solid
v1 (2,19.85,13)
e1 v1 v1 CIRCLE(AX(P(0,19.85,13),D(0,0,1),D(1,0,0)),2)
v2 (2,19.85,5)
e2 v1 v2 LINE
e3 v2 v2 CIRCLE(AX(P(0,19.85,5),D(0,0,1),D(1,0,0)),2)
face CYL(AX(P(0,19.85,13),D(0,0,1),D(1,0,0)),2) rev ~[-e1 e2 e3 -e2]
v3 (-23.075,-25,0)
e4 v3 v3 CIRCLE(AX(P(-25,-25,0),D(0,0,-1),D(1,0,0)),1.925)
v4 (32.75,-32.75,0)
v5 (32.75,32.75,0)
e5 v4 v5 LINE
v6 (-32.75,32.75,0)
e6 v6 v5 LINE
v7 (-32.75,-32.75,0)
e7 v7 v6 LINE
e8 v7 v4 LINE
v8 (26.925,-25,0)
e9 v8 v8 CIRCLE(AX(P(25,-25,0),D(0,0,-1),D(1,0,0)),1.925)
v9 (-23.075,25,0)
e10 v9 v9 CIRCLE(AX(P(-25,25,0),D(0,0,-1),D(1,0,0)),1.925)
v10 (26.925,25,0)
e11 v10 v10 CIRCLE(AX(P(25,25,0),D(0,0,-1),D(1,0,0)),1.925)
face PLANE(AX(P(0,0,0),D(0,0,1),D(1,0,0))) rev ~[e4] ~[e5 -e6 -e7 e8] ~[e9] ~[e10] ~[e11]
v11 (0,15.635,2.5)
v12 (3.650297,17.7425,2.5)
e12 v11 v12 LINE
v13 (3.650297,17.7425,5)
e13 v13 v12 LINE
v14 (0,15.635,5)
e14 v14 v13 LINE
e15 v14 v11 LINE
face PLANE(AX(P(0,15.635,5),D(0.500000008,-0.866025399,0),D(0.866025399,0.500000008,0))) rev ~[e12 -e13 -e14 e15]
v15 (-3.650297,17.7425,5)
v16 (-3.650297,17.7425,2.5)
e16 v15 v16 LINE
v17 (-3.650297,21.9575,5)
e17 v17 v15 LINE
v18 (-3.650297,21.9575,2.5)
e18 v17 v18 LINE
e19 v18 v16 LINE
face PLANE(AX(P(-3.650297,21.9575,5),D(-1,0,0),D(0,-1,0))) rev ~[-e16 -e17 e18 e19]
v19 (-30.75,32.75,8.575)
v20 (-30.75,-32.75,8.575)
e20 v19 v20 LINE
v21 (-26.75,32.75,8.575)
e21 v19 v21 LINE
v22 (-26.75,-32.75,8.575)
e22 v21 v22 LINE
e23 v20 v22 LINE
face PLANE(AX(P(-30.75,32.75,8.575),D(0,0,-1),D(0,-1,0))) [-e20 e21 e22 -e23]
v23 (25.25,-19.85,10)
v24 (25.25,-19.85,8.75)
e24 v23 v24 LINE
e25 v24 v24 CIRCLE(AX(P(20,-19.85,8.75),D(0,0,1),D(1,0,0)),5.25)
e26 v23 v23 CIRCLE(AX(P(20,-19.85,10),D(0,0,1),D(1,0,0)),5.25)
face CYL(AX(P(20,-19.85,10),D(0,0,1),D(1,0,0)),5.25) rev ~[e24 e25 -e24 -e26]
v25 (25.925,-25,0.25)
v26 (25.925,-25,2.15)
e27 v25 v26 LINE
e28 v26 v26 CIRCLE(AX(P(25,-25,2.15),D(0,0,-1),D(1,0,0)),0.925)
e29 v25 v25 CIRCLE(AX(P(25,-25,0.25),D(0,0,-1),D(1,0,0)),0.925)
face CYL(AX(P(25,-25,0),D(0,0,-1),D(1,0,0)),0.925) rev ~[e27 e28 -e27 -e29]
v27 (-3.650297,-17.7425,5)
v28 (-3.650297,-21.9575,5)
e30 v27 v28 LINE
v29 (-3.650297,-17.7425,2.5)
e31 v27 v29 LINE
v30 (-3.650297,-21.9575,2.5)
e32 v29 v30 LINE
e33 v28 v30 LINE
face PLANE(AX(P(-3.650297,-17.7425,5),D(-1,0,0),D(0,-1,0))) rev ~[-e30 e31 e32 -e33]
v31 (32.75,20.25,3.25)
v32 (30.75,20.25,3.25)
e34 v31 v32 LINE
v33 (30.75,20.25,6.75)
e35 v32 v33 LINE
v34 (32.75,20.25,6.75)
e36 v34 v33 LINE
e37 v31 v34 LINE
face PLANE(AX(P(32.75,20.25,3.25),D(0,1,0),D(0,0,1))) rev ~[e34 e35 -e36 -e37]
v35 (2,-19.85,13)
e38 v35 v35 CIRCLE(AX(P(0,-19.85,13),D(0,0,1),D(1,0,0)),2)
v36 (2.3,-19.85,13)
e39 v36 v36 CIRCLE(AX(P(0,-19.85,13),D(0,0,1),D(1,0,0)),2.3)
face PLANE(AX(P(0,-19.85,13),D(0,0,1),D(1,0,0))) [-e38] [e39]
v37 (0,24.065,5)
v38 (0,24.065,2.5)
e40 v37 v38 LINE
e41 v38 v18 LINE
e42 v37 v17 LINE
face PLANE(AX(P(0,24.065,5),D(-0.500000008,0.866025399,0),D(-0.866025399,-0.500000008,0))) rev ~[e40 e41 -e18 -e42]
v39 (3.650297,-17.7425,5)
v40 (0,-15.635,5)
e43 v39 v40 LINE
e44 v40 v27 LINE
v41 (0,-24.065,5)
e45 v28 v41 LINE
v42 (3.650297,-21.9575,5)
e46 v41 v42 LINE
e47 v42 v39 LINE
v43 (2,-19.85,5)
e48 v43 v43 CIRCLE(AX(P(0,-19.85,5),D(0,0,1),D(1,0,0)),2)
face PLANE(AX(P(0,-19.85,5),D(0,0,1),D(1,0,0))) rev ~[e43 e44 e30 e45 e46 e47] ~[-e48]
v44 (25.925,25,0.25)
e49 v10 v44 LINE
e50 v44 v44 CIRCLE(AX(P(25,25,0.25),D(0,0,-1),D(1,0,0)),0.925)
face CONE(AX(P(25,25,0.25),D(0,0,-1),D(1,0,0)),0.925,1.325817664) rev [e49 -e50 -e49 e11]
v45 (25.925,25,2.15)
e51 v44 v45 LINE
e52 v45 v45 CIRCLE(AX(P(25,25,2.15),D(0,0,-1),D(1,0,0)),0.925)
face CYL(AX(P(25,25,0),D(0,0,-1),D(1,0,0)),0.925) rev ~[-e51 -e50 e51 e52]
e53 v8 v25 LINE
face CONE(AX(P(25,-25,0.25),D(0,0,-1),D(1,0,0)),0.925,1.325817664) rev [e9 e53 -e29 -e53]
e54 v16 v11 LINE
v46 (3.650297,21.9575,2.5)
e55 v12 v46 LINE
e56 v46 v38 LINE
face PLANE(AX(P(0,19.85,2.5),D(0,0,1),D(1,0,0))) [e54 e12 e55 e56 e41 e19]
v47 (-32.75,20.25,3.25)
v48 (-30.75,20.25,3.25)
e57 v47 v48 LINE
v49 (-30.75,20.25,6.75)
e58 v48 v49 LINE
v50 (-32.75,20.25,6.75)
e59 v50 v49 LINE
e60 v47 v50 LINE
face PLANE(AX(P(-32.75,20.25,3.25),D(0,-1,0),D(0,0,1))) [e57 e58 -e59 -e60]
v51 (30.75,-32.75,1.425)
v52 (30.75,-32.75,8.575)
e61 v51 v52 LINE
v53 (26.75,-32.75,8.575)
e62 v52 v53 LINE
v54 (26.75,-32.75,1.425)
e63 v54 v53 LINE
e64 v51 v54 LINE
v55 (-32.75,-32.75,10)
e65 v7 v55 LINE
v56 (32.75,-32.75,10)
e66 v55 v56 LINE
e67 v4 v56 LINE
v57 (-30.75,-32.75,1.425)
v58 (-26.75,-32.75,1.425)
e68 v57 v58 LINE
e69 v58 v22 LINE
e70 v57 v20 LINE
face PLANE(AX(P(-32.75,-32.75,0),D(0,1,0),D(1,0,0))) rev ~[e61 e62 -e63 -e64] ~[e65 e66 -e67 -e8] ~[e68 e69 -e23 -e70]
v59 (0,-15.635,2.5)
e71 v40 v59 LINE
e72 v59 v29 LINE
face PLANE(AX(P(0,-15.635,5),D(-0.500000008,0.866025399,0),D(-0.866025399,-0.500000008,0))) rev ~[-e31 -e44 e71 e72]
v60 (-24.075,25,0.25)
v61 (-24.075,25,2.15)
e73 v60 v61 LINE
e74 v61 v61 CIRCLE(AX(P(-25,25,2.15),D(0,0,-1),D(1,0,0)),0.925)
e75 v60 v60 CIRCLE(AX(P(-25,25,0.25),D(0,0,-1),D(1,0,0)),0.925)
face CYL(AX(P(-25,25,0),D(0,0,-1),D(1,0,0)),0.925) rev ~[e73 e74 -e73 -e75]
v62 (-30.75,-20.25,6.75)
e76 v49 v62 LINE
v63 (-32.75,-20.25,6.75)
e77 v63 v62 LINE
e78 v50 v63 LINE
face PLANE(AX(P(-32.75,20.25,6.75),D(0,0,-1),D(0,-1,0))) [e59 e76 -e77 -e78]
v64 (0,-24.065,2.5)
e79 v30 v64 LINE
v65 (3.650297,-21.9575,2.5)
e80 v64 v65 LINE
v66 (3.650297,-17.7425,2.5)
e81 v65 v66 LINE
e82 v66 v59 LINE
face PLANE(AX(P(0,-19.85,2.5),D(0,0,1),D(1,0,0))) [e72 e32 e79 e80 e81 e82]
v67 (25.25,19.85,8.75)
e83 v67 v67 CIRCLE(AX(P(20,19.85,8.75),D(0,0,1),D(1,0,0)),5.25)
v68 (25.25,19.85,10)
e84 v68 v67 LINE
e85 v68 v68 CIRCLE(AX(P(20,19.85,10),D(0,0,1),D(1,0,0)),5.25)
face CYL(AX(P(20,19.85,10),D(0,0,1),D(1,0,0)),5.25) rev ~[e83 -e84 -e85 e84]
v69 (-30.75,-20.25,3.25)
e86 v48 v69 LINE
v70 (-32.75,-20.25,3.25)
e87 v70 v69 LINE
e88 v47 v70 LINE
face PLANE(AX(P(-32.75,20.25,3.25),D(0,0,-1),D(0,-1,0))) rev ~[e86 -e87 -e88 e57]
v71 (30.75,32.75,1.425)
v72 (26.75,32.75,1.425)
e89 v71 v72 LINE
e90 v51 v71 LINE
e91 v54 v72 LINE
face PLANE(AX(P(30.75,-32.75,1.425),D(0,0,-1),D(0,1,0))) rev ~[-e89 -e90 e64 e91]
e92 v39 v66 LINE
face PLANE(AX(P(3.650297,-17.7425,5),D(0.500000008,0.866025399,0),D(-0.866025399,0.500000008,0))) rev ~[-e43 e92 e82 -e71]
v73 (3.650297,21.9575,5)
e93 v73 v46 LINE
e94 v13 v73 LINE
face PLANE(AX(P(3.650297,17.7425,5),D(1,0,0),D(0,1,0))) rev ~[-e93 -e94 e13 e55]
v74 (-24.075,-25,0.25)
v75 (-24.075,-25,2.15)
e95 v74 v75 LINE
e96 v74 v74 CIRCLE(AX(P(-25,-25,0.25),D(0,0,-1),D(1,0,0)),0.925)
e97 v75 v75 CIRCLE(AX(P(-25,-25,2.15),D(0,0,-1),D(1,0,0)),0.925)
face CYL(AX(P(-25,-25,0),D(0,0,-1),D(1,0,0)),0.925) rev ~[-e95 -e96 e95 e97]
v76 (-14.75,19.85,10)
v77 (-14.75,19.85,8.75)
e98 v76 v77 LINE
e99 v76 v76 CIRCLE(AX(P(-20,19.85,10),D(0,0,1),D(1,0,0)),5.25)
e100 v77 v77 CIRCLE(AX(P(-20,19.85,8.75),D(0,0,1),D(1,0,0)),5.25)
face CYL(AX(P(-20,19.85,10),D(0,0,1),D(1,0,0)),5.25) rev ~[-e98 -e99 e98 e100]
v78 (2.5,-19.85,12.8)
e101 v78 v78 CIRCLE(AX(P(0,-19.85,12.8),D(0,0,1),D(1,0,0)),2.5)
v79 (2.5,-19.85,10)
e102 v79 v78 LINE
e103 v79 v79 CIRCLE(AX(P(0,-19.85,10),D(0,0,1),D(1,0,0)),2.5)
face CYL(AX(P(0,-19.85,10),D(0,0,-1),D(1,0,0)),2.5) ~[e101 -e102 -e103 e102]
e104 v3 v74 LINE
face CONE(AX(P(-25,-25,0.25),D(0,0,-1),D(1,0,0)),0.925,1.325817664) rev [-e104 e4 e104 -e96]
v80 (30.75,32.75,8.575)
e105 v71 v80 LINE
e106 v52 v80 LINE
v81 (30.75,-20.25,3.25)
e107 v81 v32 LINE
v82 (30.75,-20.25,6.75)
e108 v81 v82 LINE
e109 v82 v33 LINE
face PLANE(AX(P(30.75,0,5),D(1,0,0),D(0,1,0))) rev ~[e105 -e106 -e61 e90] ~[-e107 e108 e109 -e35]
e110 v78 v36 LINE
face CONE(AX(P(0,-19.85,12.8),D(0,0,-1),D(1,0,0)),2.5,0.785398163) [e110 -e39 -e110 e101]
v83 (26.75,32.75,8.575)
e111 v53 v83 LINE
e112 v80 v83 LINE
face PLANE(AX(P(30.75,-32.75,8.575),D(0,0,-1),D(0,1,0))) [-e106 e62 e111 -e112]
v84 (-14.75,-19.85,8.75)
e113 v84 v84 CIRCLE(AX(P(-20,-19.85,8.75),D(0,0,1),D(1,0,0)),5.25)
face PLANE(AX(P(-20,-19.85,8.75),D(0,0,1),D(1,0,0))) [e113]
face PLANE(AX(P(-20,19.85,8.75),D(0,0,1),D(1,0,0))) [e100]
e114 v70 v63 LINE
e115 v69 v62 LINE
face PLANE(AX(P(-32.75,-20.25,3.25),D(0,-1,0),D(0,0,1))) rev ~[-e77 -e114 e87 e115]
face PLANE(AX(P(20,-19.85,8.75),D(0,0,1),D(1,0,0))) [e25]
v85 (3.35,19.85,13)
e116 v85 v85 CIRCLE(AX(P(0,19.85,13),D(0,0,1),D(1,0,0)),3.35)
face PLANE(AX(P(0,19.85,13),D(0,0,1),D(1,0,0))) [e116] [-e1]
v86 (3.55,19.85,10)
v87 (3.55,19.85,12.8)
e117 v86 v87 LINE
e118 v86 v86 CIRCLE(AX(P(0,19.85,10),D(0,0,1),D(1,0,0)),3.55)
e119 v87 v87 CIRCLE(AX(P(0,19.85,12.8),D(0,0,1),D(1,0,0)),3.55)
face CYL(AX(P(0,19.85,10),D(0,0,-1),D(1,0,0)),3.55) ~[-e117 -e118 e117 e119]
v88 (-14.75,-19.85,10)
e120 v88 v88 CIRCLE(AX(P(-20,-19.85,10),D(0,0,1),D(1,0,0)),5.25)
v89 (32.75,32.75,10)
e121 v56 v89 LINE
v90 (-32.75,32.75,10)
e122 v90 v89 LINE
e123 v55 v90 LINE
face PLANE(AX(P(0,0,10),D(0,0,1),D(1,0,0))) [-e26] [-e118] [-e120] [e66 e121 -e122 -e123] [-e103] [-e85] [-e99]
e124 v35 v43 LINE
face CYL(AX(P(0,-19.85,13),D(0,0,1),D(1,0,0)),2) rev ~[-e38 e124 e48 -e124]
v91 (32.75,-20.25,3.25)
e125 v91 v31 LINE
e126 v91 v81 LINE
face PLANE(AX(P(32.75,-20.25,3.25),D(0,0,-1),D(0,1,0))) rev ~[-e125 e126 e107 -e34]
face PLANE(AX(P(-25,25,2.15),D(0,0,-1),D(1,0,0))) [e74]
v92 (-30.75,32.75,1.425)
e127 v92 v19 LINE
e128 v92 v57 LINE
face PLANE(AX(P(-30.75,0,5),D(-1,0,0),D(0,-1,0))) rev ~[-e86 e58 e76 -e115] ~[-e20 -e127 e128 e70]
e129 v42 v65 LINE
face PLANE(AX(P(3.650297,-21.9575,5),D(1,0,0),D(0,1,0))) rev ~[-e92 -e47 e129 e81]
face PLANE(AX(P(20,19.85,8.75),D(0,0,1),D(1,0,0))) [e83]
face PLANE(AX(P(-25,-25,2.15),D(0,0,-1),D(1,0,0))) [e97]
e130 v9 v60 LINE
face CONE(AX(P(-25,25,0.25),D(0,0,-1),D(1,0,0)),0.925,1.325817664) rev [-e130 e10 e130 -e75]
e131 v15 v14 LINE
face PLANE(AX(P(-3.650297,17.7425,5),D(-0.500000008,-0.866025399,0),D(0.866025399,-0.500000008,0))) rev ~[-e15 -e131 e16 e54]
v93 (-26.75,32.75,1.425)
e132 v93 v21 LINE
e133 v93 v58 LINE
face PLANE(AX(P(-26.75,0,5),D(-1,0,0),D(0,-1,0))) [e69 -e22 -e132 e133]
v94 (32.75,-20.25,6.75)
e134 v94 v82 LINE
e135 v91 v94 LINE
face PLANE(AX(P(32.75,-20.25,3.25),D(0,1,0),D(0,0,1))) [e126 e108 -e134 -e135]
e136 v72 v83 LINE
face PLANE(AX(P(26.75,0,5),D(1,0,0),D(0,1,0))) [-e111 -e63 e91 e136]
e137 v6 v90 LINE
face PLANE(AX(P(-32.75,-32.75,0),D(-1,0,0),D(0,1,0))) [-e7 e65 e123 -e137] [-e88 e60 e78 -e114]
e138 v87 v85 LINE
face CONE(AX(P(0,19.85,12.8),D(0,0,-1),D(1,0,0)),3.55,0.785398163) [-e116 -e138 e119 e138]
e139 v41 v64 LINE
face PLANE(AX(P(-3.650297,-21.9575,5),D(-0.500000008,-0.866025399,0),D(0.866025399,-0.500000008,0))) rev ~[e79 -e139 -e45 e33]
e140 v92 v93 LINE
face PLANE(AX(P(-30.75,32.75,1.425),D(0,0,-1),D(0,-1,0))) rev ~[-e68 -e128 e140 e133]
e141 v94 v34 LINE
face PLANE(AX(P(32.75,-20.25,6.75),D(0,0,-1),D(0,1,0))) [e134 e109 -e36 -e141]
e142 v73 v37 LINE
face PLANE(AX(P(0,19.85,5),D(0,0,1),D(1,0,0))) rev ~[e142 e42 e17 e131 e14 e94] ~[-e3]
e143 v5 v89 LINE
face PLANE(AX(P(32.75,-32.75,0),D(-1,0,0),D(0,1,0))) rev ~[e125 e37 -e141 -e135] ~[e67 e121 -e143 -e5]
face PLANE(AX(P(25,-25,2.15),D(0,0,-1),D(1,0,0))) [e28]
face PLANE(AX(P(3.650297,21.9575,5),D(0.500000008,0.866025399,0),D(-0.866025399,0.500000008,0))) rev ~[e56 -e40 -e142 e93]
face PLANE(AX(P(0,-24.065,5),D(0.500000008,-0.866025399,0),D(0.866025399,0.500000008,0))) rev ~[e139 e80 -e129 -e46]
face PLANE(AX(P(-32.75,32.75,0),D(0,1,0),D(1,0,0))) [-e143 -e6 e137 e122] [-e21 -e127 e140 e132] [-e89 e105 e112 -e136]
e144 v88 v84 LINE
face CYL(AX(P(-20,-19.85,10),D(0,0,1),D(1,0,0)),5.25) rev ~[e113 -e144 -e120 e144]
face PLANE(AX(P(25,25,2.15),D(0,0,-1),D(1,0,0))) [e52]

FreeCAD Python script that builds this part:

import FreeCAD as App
import Part
import Sketcher

V = App.Vector
Q = App.Units.Quantity


def edges_at(feature, points):
    """Names of the edges that pass closest to the given points."""
    edges = feature.Shape.Edges
    near = lambda p: min(range(len(edges)), key=lambda i: edges[i].distToShape(Part.Vertex(*p))[0])
    return sorted({f"Edge{near(p) + 1}" for p in points})


def add_polygon(sketch, points):
    """Adds a closed chain of lines whose ends are joined by coincident constraints."""
    first, n = sketch.GeometryCount, len(points)
    for a, b in zip(points, points[1:] + points[:1]):
        sketch.addGeometry(Part.LineSegment(App.Vector(*a, 0), App.Vector(*b, 0)), False)
    for i in range(n):
        sketch.addConstraint(Sketcher.Constraint("Coincident", first + i, 2, first + (i + 1) % n, 1))

doc = App.newDocument("Part")
body = doc.addObject("PartDesign::Body", "Body")

sketch1 = body.newObject("Sketcher::SketchObject", "Sketch")
sketch1.AttachmentSupport = (doc.getObject("XY_Plane"), [""])
sketch1.MapMode = "FlatFace"
add_polygon(sketch1, [(-33, 33), (-33, -33), (33, -33), (33, 33)])
sketch1.addConstraint([
    Sketcher.Constraint("Vertical", 0),
    Sketcher.Constraint("Horizontal", 1),
    Sketcher.Constraint("Vertical", 2),
    Sketcher.Constraint("Horizontal", 3),
    Sketcher.Constraint("Symmetric", 0, 2, 2, 2, -1, 1),
    Sketcher.Constraint("Equal", 3, 0),
    Sketcher.Constraint("DistanceX", 1, 1, 1, 2, Q("65.5 mm")),
])
pad1 = body.newObject("PartDesign::Pad", "Pad")
pad1.Profile = sketch1
pad1.Length = 10

sketch2 = body.newObject("Sketcher::SketchObject", "Sketch001")
sketch2.AttachmentSupport = (doc.getObject("XY_Plane"), [""])
sketch2.MapMode = "FlatFace"
sketch2.AttachmentOffset = App.Placement(V(0, 0, 10), App.Rotation())
sketch2.addGeometry([
    Part.Circle(V(0, 19.9, 0), V(0, 0, 1), 3.5),
    Part.Circle(V(0, -19.9, 0), V(0, 0, 1), 2.5),
], False)
sketch2.addConstraint([
    Sketcher.Constraint("Symmetric", 0, 3, 1, 3, -1, 1),
    Sketcher.Constraint("PointOnObject", 0, 3, -2),
    Sketcher.Constraint("Diameter", 1, Q("5 mm")),
    Sketcher.Constraint("Diameter", 0, Q("7.1 mm")),
    Sketcher.Constraint("DistanceY", 1, 3, 0, 3, Q("39.7 mm")),
])
pad2 = body.newObject("PartDesign::Pad", "Pad001")
pad2.Profile = sketch2
pad2.Length = 3

sketch3 = body.newObject("Sketcher::SketchObject", "Sketch002")
sketch3.AttachmentSupport = (doc.getObject("XY_Plane"), [""])
sketch3.MapMode = "FlatFace"
sketch3.AttachmentOffset = App.Placement(V(0, 0, 13), App.Rotation())
sketch3.addGeometry([
    Part.Circle(V(0, 19.9, 0), V(0, 0, 1), 2),
    Part.Circle(V(0, -19.9, 0), V(0, 0, 1), 2),
], False)
sketch3.addConstraint([
    Sketcher.Constraint("Equal", 0, 1),
    Sketcher.Constraint("Symmetric", 0, 3, 1, 3, -1, 1),
    Sketcher.Constraint("PointOnObject", 0, 3, -2),
    Sketcher.Constraint("Diameter", 0, Q("4 mm")),
    Sketcher.Constraint("DistanceY", 1, 3, 0, 3, Q("39.7 mm")),
])
pocket1 = body.newObject("PartDesign::Pocket", "Pocket")
pocket1.Profile = sketch3
pocket1.Length = 8
doc.recompute()

chamfer = body.newObject("PartDesign::Chamfer", "Chamfer")
chamfer.Base = (pocket1, edges_at(pocket1, [(-3.55, 19.85, 13), (-2.5, -19.85, 13)]))
chamfer.Size = 0.2

sketch4 = body.newObject("Sketcher::SketchObject", "Sketch003")
sketch4.AttachmentSupport = (doc.getObject("XY_Plane"), [""])
sketch4.MapMode = "FlatFace"
sketch4.AttachmentOffset = App.Placement(V(0, 0, 5), App.Rotation())
add_polygon(sketch4, [(-3.7, 17.7), (0, 15.6), (3.7, 17.7), (3.7, 22), (0, 24.1), (-3.7, 22)])
add_polygon(sketch4, [(-3.7, -22), (0, -24.1), (3.7, -22), (3.7, -17.7), (0, -15.6), (-3.7, -17.7)])
sketch4.addConstraint([
    Sketcher.Constraint("Vertical", 2),
    Sketcher.Constraint("Vertical", 5),
    Sketcher.Constraint("Vertical", 8),
    Sketcher.Constraint("Vertical", 11),
    Sketcher.Constraint("Symmetric", 3, 2, 6, 2, -1, 1),
    Sketcher.Constraint("Symmetric", 4, 2, 7, 2, -1, 1),
    Sketcher.Constraint("Symmetric", 0, 2, 9, 2, -1, 1),
    Sketcher.Constraint("Symmetric", 1, 2, 10, 2, -1, 1),
    Sketcher.Constraint("Symmetric", 2, 2, 4, 2, -2),
    Sketcher.Constraint("PointOnObject", 0, 2, -2),
    Sketcher.Constraint("PointOnObject", 3, 2, -2),
    Sketcher.Constraint("Parallel", 0, 3),
    Sketcher.Constraint("Parallel", 1, 4),
    Sketcher.Constraint("Parallel", 3, 6),
    Sketcher.Constraint("Parallel", 6, 9),
    Sketcher.Constraint("Angle", 0, Q("-30.000001 deg")),
    Sketcher.Constraint("DistanceY", 6, 2, 0, 2, Q("39.7 mm")),
    Sketcher.Constraint("DistanceY", 2, 1, 2, 2, Q("4.215 mm")),
    Sketcher.Constraint("DistanceY", 0, 2, 3, 2, Q("8.43 mm")),
])
pocket2 = body.newObject("PartDesign::Pocket", "Pocket001")
pocket2.Profile = sketch4
pocket2.Length = 2.5

sketch5 = body.newObject("Sketcher::SketchObject", "Sketch004")
sketch5.AttachmentSupport = (doc.getObject("YZ_Plane"), [""])
sketch5.MapMode = "FlatFace"
sketch5.AttachmentOffset = App.Placement(V(0, 0, 32.75), App.Rotation())
add_polygon(sketch5, [(-20.2, 6.8), (-20.2, 3.2), (20.2, 3.2), (20.2, 6.8)])
sketch5.addConstraint([
    Sketcher.Constraint("Vertical", 0),
    Sketcher.Constraint("Horizontal", 1),
    Sketcher.Constraint("Vertical", 2),
    Sketcher.Constraint("Horizontal", 3),
    Sketcher.Constraint("DistanceX", 1, 1, 1, 2, Q("40.5 mm")),
    Sketcher.Constraint("DistanceY", 0, 2, 0, 1, Q("3.5 mm")),
    Sketcher.Constraint("DistanceX", 0, 2, -1, 1, Q("20.25 mm")),
    Sketcher.Constraint("DistanceY", -1, 1, 0, 2, Q("3.25 mm")),
])
pocket3 = body.newObject("PartDesign::Pocket", "Pocket002")
pocket3.Profile = sketch5
pocket3.Length = 2

sketch6 = body.newObject("Sketcher::SketchObject", "Sketch005")
sketch6.AttachmentSupport = (doc.getObject("YZ_Plane"), [""])
sketch6.MapMode = "FlatFace"
sketch6.AttachmentOffset = App.Placement(V(0, 0, -32.75), App.Rotation())
add_polygon(sketch6, [(20.2, 6.8), (20.2, 3.2), (-20.2, 3.2), (-20.2, 6.8)])
sketch6.addConstraint([
    Sketcher.Constraint("Vertical", 0),
    Sketcher.Constraint("Horizontal", 1),
    Sketcher.Constraint("Vertical", 2),
    Sketcher.Constraint("Horizontal", 3),
    Sketcher.Constraint("DistanceX", 1, 2, 1, 1, Q("40.5 mm")),
    Sketcher.Constraint("DistanceY", 0, 2, 0, 1, Q("3.5 mm")),
    Sketcher.Constraint("DistanceX", -1, 1, 0, 2, Q("20.25 mm")),
    Sketcher.Constraint("DistanceY", -1, 1, 0, 2, Q("3.25 mm")),
])
pocket4 = body.newObject("PartDesign::Pocket", "Pocket003")
pocket4.Profile = sketch6
pocket4.Length = 2
pocket4.Reversed = True

sketch7 = body.newObject("Sketcher::SketchObject", "Sketch006")
sketch7.AttachmentSupport = (doc.getObject("YZ_Plane"), [""])
sketch7.MapMode = "FlatFace"
sketch7.AttachmentOffset = App.Placement(V(0, 0, 30.75), App.Rotation())
add_polygon(sketch7, [(-33, 9), (-33, 1), (33, 1), (33, 9)])
sketch7.addConstraint([
    Sketcher.Constraint("Vertical", 0),
    Sketcher.Constraint("Horizontal", 1),
    Sketcher.Constraint("Vertical", 2),
    Sketcher.Constraint("Horizontal", 3),
    Sketcher.Constraint("DistanceX", 1, 1, 1, 2, Q("65.5 mm")),
    Sketcher.Constraint("DistanceY", 0, 2, 0, 1, Q("7.15 mm")),
    Sketcher.Constraint("DistanceX", 0, 2, -1, 1, Q("32.75 mm")),
    Sketcher.Constraint("DistanceY", -1, 1, 0, 2, Q("1.425 mm")),
])
pocket5 = body.newObject("PartDesign::Pocket", "Pocket004")
pocket5.Profile = sketch7
pocket5.Length = 4

sketch8 = body.newObject("Sketcher::SketchObject", "Sketch007")
sketch8.AttachmentSupport = (doc.getObject("YZ_Plane"), [""])
sketch8.MapMode = "FlatFace"
sketch8.AttachmentOffset = App.Placement(V(0, 0, -30.75), App.Rotation())
add_polygon(sketch8, [(33, 9), (33, 1), (-33, 1), (-33, 9)])
sketch8.addConstraint([
    Sketcher.Constraint("Vertical", 0),
    Sketcher.Constraint("Horizontal", 1),
    Sketcher.Constraint("Vertical", 2),
    Sketcher.Constraint("Horizontal", 3),
    Sketcher.Constraint("DistanceX", 1, 2, 1, 1, Q("65.5 mm")),
    Sketcher.Constraint("DistanceY", 0, 2, 0, 1, Q("7.15 mm")),
    Sketcher.Constraint("DistanceX", -1, 1, 0, 2, Q("32.75 mm")),
    Sketcher.Constraint("DistanceY", -1, 1, 0, 2, Q("1.425 mm")),
])
pocket6 = body.newObject("PartDesign::Pocket", "Pocket005")
pocket6.Profile = sketch8
pocket6.Length = 4
pocket6.Reversed = True

sketch9 = body.newObject("Sketcher::SketchObject", "Sketch008")
sketch9.AttachmentSupport = (doc.getObject("XY_Plane"), [""])
sketch9.MapMode = "FlatFace"
sketch9.addGeometry([
    Part.Circle(V(-25, -25, 0), V(0, 0, 1), 0.9),
    Part.Circle(V(25, -25, 0), V(0, 0, 1), 0.9),
    Part.Circle(V(-25, 25, 0), V(0, 0, 1), 0.9),
    Part.Circle(V(25, 25, 0), V(0, 0, 1), 0.9),
], False)
sketch9.addConstraint([
    Sketcher.Constraint("Equal", 0, 1),
    Sketcher.Constraint("Equal", 1, 2),
    Sketcher.Constraint("Equal", 2, 3),
    Sketcher.Constraint("Symmetric", 1, 3, 2, 3, -1, 1),
    Sketcher.Constraint("Symmetric", 0, 3, 3, 3, -1, 1),
    Sketcher.Constraint("Symmetric", 0, 3, 1, 3, -2),
    Sketcher.Constraint("Diameter", 0, Q("1.85 mm")),
    Sketcher.Constraint("DistanceX", 0, 3, -1, 1, Q("25 mm")),
    Sketcher.Constraint("DistanceY", 0, 3, -1, 1, Q("25 mm")),
])
pocket7 = body.newObject("PartDesign::Pocket", "Pocket006")
pocket7.Profile = sketch9
pocket7.Length = 2.15
pocket7.Reversed = True
doc.recompute()

chamfer2 = body.newObject("PartDesign::Chamfer", "Chamfer001")
chamfer2.Base = (pocket7, edges_at(pocket7, [
    (-25.925, -25, 0),
    (24.075, -25, 0),
    (-25.925, 25, 0),
    (24.075, 25, 0),
]))
chamfer2.ChamferType = "Two distances"
chamfer2.Size = 1
chamfer2.Size2 = 0.25

sketch10 = body.newObject("Sketcher::SketchObject", "Sketch009")
sketch10.AttachmentSupport = (doc.getObject("XY_Plane"), [""])
sketch10.MapMode = "FlatFace"
sketch10.AttachmentOffset = App.Placement(V(0, 0, 10), App.Rotation())
sketch10.addGeometry([
    Part.Circle(V(-20, 20, 0), V(0, 0, 1), 5),
    Part.Circle(V(20, 20, 0), V(0, 0, 1), 5),
    Part.Circle(V(20, -20, 0), V(0, 0, 1), 5),
    Part.Circle(V(-20, -20, 0), V(0, 0, 1), 5),
], False)
sketch10.addConstraint([
    Sketcher.Constraint("Equal", 0, 1),
    Sketcher.Constraint("Equal", 1, 2),
    Sketcher.Constraint("Equal", 2, 3),
    Sketcher.Constraint("Symmetric", 0, 3, 2, 3, -1, 1),
    Sketcher.Constraint("Symmetric", 1, 3, 3, 3, -1, 1),
    Sketcher.Constraint("Symmetric", 0, 3, 1, 3, -2),
    Sketcher.Constraint("Diameter", 0, Q("10.5 mm")),
    Sketcher.Constraint("DistanceX", 0, 3, -1, 1, Q("20 mm")),
    Sketcher.Constraint("DistanceY", 2, 3, 1, 3, Q("39.7 mm")),
])
pocket8 = body.newObject("PartDesign::Pocket", "Pocket007")
pocket8.Profile = sketch10
pocket8.Length = 1.25

doc.recompute()
